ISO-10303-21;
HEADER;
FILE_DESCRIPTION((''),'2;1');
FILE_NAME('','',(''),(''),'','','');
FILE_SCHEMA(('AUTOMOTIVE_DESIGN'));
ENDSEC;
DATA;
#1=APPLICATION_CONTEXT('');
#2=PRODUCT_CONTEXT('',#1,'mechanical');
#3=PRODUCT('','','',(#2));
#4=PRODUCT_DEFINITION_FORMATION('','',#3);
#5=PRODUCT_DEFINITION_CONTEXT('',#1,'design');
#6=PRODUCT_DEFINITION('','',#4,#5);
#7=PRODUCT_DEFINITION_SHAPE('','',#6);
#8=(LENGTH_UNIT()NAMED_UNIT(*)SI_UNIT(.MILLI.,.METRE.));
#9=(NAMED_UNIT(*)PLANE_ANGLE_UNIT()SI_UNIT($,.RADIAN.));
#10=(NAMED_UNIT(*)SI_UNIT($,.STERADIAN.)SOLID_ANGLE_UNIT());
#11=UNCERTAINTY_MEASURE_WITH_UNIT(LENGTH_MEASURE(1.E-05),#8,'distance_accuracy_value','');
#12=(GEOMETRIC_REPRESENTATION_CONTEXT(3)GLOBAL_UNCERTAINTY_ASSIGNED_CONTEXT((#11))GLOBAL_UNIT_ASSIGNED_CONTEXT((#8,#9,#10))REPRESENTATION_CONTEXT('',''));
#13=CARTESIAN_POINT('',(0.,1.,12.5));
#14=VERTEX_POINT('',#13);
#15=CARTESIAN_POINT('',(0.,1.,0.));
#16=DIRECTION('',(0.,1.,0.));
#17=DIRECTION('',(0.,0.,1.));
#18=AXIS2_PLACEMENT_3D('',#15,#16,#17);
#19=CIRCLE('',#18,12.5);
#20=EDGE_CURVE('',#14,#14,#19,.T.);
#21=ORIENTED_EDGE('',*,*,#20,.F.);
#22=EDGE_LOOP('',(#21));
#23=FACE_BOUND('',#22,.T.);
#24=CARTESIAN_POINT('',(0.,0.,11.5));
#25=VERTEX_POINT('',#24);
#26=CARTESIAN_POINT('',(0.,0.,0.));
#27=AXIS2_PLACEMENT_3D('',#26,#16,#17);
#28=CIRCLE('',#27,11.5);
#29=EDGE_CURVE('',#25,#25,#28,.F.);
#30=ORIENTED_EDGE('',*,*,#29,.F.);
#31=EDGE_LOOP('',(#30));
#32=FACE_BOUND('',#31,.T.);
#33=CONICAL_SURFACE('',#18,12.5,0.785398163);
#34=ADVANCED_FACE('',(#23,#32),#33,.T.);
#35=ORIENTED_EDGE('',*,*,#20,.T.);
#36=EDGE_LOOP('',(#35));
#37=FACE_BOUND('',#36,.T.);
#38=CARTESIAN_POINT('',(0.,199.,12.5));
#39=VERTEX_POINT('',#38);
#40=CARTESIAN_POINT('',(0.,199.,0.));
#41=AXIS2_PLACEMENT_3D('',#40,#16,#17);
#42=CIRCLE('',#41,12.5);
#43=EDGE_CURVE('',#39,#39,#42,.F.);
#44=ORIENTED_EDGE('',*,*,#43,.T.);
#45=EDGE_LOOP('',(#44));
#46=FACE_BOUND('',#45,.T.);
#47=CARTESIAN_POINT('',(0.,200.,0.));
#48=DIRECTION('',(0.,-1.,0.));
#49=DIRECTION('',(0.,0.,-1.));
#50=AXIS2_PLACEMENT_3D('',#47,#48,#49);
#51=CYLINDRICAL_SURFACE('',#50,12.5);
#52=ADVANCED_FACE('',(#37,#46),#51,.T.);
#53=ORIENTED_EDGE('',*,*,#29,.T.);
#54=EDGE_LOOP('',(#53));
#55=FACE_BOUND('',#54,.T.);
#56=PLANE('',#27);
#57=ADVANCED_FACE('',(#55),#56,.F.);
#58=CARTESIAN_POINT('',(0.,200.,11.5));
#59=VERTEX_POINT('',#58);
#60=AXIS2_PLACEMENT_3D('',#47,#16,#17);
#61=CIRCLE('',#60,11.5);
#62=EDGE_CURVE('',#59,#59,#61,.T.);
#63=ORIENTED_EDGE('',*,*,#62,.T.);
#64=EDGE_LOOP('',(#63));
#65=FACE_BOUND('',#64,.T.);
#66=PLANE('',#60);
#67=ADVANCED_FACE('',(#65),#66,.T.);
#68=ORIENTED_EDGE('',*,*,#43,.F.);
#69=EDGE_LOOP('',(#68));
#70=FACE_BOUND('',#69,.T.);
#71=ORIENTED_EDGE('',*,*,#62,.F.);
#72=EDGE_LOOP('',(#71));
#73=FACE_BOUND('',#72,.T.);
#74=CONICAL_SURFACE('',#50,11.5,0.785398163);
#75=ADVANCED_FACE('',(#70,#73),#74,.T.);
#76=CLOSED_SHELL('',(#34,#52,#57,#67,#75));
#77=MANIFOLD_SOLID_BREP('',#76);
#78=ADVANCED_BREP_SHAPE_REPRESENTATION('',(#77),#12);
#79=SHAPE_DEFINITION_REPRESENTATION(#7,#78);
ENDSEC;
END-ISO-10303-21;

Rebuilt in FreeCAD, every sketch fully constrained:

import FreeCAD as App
import Part
import Sketcher

V = App.Vector


def edges_at(feature, points):
    """Names of the edges that pass closest to the given points."""
    edges = feature.Shape.Edges
    near = lambda p: min(range(len(edges)), key=lambda i: edges[i].distToShape(Part.Vertex(*p))[0])
    return sorted({f"Edge{near(p) + 1}" for p in points})

doc = App.newDocument("Part")
body = doc.addObject("PartDesign::Body", "Body")

# Sketch on XZ plane
sketch1 = body.newObject("Sketcher::SketchObject", "Sketch")
sketch1.AttachmentSupport = (doc.getObject("XZ_Plane"), [""])
sketch1.MapMode = "FlatFace"
sketch1.addGeometry(Part.Circle(V(0, 0, 0), V(0, 0, 1), 12), False)
sketch1.addConstraint([
    Sketcher.Constraint("Coincident", 0, 3, -1, 1),
    Sketcher.Constraint("Diameter", 0, 25.0),
])
pad1 = body.newObject("PartDesign::Pad", "Pad")
pad1.Profile = sketch1
pad1.Length = 200
pad1.Reversed = True
doc.recompute()

chamfer = body.newObject("PartDesign::Chamfer", "Chamfer")
chamfer.Base = (pad1, edges_at(pad1, [(-12.5, 0, 0), (-12.5, 200, 0)]))
chamfer.Size = 1

doc.recompute()
